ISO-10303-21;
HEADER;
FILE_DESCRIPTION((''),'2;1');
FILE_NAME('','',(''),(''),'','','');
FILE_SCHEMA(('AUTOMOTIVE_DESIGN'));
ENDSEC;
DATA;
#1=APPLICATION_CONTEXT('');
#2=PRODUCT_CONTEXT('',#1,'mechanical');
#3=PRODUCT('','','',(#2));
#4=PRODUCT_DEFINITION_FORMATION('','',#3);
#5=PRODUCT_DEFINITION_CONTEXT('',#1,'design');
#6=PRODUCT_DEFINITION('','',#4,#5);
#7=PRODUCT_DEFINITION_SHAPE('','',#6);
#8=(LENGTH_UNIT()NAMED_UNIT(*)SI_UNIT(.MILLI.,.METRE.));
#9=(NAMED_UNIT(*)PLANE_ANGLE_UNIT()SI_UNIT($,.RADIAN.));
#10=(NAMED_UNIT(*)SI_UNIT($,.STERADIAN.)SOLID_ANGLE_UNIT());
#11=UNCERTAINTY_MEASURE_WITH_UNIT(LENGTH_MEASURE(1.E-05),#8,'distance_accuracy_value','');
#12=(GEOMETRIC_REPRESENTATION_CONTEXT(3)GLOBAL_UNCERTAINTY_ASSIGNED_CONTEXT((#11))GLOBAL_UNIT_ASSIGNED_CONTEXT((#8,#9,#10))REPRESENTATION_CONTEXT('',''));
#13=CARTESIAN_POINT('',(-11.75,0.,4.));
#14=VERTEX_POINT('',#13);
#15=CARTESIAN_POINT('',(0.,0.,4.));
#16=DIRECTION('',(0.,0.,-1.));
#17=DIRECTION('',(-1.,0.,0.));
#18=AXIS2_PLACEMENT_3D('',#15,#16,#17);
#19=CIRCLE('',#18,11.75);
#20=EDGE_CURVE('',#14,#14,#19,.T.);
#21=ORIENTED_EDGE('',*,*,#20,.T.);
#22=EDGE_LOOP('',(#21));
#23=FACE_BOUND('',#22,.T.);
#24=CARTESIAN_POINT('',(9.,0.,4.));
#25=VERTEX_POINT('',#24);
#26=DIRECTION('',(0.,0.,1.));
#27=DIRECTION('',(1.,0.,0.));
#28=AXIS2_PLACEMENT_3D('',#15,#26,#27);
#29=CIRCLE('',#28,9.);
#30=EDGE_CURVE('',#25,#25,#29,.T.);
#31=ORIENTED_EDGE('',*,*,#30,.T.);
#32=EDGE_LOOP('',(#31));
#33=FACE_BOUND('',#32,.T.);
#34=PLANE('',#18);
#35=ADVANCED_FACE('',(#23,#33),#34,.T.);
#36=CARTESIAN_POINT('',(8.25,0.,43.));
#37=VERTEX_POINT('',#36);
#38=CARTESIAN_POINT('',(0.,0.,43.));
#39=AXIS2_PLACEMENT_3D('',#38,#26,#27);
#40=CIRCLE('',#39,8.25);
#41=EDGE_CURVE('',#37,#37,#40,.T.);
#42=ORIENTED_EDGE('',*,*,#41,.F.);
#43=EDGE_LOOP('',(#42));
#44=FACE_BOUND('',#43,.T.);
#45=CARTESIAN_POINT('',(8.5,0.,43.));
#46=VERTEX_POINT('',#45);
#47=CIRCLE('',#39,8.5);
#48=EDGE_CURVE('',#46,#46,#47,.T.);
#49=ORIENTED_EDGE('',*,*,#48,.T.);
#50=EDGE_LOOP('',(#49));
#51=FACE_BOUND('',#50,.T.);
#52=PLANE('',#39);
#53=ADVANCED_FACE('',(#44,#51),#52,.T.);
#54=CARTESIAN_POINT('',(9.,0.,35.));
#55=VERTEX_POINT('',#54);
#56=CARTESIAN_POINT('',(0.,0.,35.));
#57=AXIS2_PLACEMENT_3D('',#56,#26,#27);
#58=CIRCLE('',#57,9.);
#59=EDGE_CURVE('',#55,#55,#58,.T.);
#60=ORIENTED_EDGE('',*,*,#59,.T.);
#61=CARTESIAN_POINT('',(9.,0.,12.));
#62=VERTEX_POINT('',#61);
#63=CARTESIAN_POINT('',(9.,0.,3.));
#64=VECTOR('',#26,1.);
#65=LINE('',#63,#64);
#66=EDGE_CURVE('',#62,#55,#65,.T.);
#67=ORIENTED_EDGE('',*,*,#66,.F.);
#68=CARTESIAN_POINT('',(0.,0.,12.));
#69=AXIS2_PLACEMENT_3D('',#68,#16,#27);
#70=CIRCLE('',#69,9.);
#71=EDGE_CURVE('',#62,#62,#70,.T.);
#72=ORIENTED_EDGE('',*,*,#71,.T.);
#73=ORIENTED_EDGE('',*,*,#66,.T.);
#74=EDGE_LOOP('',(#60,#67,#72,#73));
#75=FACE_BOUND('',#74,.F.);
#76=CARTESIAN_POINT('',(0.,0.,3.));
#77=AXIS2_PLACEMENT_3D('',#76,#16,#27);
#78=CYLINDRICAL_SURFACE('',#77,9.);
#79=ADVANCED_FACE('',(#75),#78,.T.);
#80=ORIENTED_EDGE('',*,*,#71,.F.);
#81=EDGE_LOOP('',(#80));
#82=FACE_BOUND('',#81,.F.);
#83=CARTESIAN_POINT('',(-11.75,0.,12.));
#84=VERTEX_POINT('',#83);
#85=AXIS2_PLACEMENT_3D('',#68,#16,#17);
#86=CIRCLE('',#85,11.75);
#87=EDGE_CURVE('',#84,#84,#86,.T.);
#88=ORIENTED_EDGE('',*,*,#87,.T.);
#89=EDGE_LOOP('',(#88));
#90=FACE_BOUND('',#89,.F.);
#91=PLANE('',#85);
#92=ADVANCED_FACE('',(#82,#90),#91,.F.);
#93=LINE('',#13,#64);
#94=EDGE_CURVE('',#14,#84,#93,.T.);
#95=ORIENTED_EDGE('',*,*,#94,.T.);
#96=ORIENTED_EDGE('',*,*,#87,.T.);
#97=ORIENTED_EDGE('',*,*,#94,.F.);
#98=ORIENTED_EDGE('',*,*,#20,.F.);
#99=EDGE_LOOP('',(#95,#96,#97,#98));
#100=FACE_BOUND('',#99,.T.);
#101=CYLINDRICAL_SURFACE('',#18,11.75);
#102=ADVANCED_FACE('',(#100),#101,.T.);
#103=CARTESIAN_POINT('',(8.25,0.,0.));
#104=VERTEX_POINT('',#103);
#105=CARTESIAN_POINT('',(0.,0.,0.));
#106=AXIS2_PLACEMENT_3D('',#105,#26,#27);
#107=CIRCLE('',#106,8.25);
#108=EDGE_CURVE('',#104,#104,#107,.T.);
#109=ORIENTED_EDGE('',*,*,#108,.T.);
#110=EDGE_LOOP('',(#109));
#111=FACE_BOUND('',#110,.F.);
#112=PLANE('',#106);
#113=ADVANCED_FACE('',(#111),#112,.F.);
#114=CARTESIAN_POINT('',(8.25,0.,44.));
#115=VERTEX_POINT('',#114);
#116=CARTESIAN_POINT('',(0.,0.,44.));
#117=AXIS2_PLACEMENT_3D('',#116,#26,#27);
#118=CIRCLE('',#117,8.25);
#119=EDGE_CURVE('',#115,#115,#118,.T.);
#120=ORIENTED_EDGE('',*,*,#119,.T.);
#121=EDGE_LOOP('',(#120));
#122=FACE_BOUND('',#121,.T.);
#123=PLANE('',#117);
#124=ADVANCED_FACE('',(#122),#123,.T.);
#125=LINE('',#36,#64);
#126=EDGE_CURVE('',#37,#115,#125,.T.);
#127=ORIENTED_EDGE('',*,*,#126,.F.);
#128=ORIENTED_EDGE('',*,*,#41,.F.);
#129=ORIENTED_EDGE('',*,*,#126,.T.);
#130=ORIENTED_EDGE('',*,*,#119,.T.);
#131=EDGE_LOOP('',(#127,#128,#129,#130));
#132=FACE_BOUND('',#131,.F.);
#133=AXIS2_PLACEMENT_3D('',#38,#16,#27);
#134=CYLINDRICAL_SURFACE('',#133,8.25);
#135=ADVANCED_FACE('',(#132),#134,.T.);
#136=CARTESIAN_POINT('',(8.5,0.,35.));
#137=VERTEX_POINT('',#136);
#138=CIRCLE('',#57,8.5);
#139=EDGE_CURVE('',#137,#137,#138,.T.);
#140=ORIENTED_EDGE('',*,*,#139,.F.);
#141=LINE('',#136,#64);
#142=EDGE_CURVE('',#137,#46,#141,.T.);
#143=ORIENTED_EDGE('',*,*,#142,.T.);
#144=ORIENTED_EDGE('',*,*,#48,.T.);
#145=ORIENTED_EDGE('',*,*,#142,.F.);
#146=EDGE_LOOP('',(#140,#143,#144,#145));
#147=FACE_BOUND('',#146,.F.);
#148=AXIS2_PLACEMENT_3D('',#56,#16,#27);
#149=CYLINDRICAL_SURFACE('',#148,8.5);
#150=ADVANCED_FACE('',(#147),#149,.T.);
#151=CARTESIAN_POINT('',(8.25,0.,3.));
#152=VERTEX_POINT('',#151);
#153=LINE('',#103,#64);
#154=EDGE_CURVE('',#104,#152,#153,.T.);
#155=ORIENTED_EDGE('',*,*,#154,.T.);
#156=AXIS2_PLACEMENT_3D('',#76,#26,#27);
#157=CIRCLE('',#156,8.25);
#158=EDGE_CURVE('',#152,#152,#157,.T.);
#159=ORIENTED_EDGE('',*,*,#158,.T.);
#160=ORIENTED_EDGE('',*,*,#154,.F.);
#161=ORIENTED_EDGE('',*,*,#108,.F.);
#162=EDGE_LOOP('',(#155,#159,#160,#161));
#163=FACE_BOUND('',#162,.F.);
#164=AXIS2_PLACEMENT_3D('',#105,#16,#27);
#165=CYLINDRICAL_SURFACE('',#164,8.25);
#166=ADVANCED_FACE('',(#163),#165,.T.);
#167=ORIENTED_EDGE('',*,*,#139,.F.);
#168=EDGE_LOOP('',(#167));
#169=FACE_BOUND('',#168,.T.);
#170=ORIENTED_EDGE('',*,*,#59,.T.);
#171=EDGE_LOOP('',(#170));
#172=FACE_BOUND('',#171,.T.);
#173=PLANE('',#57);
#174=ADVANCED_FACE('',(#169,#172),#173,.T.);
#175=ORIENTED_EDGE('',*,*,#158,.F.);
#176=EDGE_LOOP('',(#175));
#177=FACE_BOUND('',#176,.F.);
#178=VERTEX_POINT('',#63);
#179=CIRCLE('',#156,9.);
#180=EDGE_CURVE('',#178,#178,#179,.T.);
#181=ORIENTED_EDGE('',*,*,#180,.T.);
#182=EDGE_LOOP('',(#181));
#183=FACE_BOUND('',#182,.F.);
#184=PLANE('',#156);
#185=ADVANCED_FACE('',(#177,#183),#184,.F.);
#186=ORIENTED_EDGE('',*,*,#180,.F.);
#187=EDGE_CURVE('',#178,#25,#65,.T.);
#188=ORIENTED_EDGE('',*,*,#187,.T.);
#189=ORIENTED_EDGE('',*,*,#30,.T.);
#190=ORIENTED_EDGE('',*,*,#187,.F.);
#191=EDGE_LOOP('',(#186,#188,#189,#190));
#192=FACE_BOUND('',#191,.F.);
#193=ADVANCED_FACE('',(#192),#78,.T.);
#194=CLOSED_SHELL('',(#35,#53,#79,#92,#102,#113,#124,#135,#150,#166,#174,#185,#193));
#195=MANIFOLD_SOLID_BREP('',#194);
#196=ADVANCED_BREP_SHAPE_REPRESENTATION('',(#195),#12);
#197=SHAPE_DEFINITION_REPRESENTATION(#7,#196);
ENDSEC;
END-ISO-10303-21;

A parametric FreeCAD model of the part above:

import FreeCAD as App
import Part
import Sketcher
from FreeCAD import Vector

doc = App.newDocument("Part")
body = doc.addObject("PartDesign::Body", "Body")

sketch1 = doc.addObject("Sketcher::SketchObject", "Sketch")
body.addObject(sketch1)
sketch1.AttachmentSupport = (doc.XY_Plane, [""])
sketch1.MapMode = "FlatFace"
sketch1.addGeometry(Part.Circle(Vector(0, 0, 0), Vector(0, 0, 1), 8), False)
sketch1.addConstraint([
    Sketcher.Constraint("Coincident", 0, 3, -1, 1),
    Sketcher.Constraint("Diameter", 0, 16.5),
])
pad1 = doc.addObject("PartDesign::Pad", "Pad")
body.addObject(pad1)
pad1.Profile = sketch1
pad1.Length = 3

sketch2 = doc.addObject("Sketcher::SketchObject", "Sketch001")
body.addObject(sketch2)
sketch2.AttachmentSupport = (doc.XY_Plane, [""])
sketch2.MapMode = "FlatFace"
sketch2.AttachmentOffset = App.Placement(Vector(0, 0, 3), App.Rotation())
sketch2.addGeometry(Part.Circle(Vector(0, 0, 0), Vector(0, 0, 1), 9), False)
sketch2.addConstraint([
    Sketcher.Constraint("Coincident", 0, 3, -1, 1),
    Sketcher.Constraint("Diameter", 0, 18.0),
])
pad2 = doc.addObject("PartDesign::Pad", "Pad001")
body.addObject(pad2)
pad2.Profile = sketch2
pad2.Length = 32

sketch3 = doc.addObject("Sketcher::SketchObject", "Sketch002")
body.addObject(sketch3)
sketch3.AttachmentSupport = (doc.XY_Plane, [""])
sketch3.MapMode = "FlatFace"
sketch3.AttachmentOffset = App.Placement(Vector(0, 0, 35), App.Rotation())
sketch3.addGeometry(Part.Circle(Vector(0, 0, 0), Vector(0, 0, 1), 8), False)
sketch3.addConstraint([
    Sketcher.Constraint("Coincident", 0, 3, -1, 1),
    Sketcher.Constraint("Diameter", 0, 17.0),
])
pad3 = doc.addObject("PartDesign::Pad", "Pad002")
body.addObject(pad3)
pad3.Profile = sketch3
pad3.Length = 8

sketch4 = doc.addObject("Sketcher::SketchObject", "Sketch003")
body.addObject(sketch4)
sketch4.AttachmentSupport = (doc.XY_Plane, [""])
sketch4.MapMode = "FlatFace"
sketch4.AttachmentOffset = App.Placement(Vector(0, 0, 43), App.Rotation())
sketch4.addGeometry(Part.Circle(Vector(0, 0, 0), Vector(0, 0, 1), 8), False)
sketch4.addConstraint([
    Sketcher.Constraint("Coincident", 0, 3, -1, 1),
    Sketcher.Constraint("Diameter", 0, 16.5),
])
pad4 = doc.addObject("PartDesign::Pad", "Pad003")
body.addObject(pad4)
pad4.Profile = sketch4
pad4.Length = 1

sketch5 = doc.addObject("Sketcher::SketchObject", "Sketch004")
body.addObject(sketch5)
sketch5.AttachmentSupport = (doc.XY_Plane, [""])
sketch5.MapMode = "FlatFace"
sketch5.AttachmentOffset = App.Placement(Vector(0, 0, 4), App.Rotation())
sketch5.addGeometry([
    Part.Circle(Vector(0, 0, 0), Vector(0, 0, 1), 12),
    Part.Circle(Vector(0, 0, 0), Vector(0, 0, 1), 9),
], False)
sketch5.addConstraint([
    Sketcher.Constraint("Coincident", 0, 3, -1, 1),
    Sketcher.Constraint("Coincident", 1, 3, -1, 1),
    Sketcher.Constraint("Diameter", 0, 23.5),
    Sketcher.Constraint("Diameter", 1, 18.0),
])
pad5 = doc.addObject("PartDesign::Pad", "Pad004")
body.addObject(pad5)
pad5.Profile = sketch5
pad5.Length = 8

doc.recompute()
